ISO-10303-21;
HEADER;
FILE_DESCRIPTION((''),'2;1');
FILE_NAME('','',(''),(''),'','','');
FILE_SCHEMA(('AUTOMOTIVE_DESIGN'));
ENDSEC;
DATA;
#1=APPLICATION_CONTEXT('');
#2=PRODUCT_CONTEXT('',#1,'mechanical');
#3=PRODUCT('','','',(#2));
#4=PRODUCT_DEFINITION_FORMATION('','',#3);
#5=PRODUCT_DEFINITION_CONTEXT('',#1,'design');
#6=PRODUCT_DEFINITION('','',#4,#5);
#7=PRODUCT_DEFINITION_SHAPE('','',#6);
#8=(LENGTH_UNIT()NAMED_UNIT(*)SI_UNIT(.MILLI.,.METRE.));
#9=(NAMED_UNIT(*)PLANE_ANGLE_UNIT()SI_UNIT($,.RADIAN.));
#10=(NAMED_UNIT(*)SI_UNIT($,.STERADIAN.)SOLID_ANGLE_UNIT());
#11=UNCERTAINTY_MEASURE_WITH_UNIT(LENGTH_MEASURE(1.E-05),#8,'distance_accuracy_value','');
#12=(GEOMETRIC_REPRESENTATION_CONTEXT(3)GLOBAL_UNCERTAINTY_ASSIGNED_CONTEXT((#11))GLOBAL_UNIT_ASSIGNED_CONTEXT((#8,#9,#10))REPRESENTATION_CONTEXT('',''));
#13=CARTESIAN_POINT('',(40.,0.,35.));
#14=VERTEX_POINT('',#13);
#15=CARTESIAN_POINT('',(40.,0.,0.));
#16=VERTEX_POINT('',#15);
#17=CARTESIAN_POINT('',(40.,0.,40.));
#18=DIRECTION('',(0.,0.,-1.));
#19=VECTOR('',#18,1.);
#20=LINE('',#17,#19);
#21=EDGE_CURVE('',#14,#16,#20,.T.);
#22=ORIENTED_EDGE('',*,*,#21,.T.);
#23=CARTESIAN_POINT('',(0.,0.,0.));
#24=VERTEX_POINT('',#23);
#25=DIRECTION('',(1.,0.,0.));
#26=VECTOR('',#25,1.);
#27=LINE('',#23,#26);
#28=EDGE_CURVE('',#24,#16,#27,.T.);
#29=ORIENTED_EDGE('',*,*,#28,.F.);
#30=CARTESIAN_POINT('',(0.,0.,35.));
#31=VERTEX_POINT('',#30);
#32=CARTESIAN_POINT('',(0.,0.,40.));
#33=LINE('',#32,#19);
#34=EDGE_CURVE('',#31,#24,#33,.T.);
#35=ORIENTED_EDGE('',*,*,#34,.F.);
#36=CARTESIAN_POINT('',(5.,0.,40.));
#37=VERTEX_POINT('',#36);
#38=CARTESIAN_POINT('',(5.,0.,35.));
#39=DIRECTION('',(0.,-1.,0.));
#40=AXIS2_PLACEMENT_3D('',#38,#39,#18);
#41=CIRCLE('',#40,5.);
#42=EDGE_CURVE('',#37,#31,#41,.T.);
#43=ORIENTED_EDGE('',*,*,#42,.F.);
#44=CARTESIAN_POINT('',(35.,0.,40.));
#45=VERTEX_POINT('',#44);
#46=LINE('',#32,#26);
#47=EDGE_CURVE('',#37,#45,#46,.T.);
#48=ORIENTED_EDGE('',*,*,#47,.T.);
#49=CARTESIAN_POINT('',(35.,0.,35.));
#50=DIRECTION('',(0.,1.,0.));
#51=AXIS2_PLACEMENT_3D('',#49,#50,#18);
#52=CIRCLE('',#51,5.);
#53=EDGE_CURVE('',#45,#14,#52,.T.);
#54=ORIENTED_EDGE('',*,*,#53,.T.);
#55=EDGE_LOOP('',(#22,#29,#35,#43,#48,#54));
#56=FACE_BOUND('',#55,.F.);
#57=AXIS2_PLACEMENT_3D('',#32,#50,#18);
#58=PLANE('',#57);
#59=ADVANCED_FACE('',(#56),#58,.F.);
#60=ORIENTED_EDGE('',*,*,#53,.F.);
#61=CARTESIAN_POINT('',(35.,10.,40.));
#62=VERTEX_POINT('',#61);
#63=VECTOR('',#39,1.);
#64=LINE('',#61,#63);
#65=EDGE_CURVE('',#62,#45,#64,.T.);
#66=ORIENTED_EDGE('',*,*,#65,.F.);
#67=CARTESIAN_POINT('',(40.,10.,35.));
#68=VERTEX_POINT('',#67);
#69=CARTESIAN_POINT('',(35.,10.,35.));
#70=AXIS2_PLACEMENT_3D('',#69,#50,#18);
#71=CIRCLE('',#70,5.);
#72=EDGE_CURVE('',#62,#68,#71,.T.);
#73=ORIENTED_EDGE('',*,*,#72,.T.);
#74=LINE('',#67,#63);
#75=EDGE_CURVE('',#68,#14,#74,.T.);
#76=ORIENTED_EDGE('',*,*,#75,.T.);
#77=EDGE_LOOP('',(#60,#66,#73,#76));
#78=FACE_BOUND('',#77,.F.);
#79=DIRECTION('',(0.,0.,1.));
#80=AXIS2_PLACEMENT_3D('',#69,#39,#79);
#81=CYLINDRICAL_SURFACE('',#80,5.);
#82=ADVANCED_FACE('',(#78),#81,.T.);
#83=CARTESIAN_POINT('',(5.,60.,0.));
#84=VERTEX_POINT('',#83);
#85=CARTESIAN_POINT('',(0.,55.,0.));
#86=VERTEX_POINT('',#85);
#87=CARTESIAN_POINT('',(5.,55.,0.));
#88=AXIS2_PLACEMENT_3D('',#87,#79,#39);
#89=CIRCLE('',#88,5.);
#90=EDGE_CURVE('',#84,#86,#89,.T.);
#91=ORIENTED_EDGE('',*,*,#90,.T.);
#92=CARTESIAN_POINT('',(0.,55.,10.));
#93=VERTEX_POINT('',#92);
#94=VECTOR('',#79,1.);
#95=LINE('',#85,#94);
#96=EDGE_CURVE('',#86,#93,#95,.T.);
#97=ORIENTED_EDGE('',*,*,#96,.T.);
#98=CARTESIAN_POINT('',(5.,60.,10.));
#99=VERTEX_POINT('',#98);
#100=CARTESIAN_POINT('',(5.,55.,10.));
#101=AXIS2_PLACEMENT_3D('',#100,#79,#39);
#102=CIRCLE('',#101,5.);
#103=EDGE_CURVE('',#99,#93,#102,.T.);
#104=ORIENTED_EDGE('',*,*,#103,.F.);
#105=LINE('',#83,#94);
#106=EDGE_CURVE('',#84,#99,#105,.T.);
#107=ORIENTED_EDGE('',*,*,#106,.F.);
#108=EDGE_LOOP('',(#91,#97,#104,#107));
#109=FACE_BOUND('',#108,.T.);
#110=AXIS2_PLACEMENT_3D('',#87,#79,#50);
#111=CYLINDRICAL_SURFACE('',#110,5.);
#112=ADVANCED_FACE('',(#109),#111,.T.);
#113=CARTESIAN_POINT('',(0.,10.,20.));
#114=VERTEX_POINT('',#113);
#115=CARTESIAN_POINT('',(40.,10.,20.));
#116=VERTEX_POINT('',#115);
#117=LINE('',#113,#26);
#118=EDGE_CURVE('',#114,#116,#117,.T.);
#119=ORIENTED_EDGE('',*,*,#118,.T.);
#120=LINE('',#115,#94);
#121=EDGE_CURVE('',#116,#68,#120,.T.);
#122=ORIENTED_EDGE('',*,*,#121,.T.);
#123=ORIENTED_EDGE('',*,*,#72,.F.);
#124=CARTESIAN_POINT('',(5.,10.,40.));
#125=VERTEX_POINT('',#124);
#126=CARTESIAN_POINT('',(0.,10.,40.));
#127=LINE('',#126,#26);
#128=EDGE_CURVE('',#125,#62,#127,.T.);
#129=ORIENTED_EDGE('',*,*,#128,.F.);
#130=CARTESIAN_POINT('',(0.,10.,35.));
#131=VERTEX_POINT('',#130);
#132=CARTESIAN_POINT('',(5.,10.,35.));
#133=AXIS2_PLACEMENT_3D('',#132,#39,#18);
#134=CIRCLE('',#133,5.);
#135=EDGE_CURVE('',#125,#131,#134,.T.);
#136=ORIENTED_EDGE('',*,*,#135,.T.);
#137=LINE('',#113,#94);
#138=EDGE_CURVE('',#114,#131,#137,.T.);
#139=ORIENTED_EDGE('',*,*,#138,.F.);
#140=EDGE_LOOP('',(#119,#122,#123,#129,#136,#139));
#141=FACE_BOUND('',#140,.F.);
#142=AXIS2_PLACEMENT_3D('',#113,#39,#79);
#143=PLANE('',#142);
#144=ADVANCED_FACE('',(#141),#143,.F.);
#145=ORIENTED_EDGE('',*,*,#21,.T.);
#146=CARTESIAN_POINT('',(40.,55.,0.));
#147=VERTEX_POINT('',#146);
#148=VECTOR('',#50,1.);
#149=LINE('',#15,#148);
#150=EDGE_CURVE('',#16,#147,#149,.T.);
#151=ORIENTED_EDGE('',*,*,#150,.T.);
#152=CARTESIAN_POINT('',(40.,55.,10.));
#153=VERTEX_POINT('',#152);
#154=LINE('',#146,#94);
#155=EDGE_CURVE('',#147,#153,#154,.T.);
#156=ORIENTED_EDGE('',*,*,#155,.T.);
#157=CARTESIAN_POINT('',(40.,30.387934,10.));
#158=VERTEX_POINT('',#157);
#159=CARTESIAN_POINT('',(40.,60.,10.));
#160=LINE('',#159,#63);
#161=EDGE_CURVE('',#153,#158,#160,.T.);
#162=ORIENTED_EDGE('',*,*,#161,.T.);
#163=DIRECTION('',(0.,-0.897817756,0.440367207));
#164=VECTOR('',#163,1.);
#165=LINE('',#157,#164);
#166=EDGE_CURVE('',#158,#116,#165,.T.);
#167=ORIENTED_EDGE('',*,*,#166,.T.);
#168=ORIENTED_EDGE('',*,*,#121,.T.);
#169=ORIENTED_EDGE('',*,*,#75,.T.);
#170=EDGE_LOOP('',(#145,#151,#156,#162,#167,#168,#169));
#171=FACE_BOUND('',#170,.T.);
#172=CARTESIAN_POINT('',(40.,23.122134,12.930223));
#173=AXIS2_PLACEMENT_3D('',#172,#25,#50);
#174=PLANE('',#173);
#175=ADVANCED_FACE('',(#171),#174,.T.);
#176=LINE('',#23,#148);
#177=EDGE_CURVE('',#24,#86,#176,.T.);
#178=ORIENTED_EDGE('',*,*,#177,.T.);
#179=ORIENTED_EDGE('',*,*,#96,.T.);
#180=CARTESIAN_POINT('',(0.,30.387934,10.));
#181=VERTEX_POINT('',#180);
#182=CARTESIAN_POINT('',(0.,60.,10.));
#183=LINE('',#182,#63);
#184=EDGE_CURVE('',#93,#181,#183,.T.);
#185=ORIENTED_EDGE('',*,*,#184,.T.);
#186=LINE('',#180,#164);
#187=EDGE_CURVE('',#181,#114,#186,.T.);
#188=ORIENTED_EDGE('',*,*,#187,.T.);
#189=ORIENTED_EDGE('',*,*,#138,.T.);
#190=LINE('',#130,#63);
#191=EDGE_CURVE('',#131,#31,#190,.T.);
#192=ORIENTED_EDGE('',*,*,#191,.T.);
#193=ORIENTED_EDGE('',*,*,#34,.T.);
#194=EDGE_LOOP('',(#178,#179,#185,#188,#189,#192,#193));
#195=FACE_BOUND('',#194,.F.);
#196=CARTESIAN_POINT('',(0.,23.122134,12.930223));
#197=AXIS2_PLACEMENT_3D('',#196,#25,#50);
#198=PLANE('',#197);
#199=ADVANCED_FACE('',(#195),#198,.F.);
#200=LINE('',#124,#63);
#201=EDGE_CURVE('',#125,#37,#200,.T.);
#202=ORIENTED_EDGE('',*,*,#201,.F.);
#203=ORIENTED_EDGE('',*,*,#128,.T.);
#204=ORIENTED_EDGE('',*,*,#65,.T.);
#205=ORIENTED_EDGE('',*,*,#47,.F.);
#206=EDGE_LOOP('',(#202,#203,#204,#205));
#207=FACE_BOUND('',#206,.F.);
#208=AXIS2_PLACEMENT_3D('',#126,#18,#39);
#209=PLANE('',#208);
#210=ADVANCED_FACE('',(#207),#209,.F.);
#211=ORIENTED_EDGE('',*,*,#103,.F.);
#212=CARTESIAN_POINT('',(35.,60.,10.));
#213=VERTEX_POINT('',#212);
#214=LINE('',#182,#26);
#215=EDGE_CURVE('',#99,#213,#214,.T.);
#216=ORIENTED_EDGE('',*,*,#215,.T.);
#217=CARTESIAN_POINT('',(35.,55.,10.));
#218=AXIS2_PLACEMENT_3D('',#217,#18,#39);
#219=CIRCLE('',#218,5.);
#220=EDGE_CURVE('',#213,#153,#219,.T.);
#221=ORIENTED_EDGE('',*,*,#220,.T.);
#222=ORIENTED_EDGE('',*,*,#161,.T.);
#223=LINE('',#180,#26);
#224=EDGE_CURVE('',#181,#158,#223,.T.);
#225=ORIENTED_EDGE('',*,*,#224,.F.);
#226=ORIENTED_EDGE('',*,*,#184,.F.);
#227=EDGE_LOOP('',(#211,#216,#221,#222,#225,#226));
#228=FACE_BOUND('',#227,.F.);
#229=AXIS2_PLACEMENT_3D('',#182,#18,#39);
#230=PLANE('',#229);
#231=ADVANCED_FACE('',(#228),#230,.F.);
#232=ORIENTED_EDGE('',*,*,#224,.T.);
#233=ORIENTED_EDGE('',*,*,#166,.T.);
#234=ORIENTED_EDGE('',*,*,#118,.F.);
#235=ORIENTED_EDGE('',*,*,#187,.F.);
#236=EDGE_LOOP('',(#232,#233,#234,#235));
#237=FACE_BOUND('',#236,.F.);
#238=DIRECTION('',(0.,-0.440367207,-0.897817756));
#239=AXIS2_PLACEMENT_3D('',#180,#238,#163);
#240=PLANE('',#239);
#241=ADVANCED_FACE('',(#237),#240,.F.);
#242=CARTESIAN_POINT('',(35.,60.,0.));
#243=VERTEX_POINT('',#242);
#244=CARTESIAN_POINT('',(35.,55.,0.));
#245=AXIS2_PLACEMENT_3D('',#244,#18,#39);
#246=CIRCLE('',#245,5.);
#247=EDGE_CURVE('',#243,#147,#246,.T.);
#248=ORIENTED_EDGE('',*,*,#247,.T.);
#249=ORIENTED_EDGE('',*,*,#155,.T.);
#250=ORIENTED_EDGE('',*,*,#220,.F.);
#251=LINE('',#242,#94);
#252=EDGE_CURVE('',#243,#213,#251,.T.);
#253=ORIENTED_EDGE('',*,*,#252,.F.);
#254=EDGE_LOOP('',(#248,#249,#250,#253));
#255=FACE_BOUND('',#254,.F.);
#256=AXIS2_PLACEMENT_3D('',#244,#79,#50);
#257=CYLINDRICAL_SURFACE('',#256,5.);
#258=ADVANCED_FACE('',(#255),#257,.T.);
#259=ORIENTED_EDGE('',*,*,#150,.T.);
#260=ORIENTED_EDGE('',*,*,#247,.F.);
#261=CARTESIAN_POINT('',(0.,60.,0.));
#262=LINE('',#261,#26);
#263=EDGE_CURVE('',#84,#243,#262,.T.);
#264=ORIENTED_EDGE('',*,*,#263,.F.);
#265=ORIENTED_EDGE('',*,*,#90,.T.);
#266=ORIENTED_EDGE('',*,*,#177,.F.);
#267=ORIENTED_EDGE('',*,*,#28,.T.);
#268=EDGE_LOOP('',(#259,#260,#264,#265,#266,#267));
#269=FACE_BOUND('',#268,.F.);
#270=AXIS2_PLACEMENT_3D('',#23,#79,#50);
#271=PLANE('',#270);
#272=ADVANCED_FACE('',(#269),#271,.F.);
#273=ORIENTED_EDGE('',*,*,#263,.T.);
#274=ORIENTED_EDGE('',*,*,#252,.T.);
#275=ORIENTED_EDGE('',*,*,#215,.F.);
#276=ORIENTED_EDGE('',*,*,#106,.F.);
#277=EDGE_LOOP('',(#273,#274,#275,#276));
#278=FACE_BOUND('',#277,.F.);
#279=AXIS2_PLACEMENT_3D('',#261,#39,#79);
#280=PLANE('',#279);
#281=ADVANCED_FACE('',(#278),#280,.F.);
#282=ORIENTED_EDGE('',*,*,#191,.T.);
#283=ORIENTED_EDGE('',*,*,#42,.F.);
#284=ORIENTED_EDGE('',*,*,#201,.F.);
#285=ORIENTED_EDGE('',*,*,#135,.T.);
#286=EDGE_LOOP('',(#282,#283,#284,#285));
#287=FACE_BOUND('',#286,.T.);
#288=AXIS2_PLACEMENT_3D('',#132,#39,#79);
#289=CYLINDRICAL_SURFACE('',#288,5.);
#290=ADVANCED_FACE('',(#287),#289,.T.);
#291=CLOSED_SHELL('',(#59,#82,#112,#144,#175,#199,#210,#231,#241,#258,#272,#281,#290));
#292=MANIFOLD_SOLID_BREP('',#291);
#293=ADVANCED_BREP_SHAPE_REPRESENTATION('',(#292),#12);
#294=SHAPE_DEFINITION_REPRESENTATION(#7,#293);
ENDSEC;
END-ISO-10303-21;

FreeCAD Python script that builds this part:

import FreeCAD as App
import Part
import Sketcher


def edges_at(feature, points):
    """Names of the edges that pass closest to the given points."""
    edges = feature.Shape.Edges
    near = lambda p: min(range(len(edges)), key=lambda i: edges[i].distToShape(Part.Vertex(*p))[0])
    return sorted({f"Edge{near(p) + 1}" for p in points})


def add_polygon(sketch, points):
    """Adds a closed chain of lines whose ends are joined by coincident constraints."""
    first, n = sketch.GeometryCount, len(points)
    for a, b in zip(points, points[1:] + points[:1]):
        sketch.addGeometry(Part.LineSegment(App.Vector(*a, 0), App.Vector(*b, 0)), False)
    for i in range(n):
        sketch.addConstraint(Sketcher.Constraint("Coincident", first + i, 2, first + (i + 1) % n, 1))

doc = App.newDocument("Part")
params = doc.addObject("Spreadsheet::Sheet", "Params")
for row, (alias, value) in enumerate([
    ("sketch1_width", "60 mm"),
    ("sketch1_width2", "10 mm"),
    ("sketch1_height", "40 mm"),
    ("sketch1_height2", "20 mm"),
    ("pad1_length", "40 mm"),
    ("fillet_radius", "5 mm"),
], start=1):
    params.set(f"A{row}", alias)
    params.set(f"B{row}", "=" + value)
    params.setAlias(f"B{row}", alias)

body = doc.addObject("PartDesign::Body", "Body")

# Sketch on YZ plane
sketch1 = body.newObject("Sketcher::SketchObject", "Sketch")
sketch1.AttachmentSupport = (doc.getObject("YZ_Plane"), [""])
sketch1.MapMode = "FlatFace"
add_polygon(sketch1, [(0, 40), (0, 0), (60, 0), (60, 10), (30.387934, 10), (10, 20), (10, 40)])  # lines 0-6
sketch1.addConstraint([
    Sketcher.Constraint("Vertical", 0),
    Sketcher.Constraint("Horizontal", 1),
    Sketcher.Constraint("Vertical", 2),
    Sketcher.Constraint("Horizontal", 3),
    Sketcher.Constraint("Vertical", 5),
    Sketcher.Constraint("Horizontal", 6),
    Sketcher.Constraint("Coincident", 0, 2, -1, 1),
    Sketcher.Constraint("Equal", 6, 2),
    Sketcher.Constraint("DistanceX", 1, 1, 1, 2, 60.0),
    Sketcher.Constraint("DistanceX", 6, 2, 6, 1, 10.0),
    Sketcher.Constraint("DistanceY", 0, 2, 0, 1, 40.0),
    Sketcher.Constraint("DistanceY", 5, 1, 5, 2, 20.0),
    Sketcher.Constraint("Distance", 4, 22.708321),
])
sketch1.setExpression("Constraints[15]", "Params.sketch1_width")
sketch1.setExpression("Constraints[16]", "Params.sketch1_width2")
sketch1.setExpression("Constraints[17]", "Params.sketch1_height")
sketch1.setExpression("Constraints[18]", "Params.sketch1_height2")
pad1 = body.newObject("PartDesign::Pad", "Pad")
pad1.Profile = sketch1
pad1.setExpression("Length", "Params.pad1_length")
doc.recompute()

fillet = body.newObject("PartDesign::Fillet", "Fillet")
fillet.Base = (pad1, edges_at(pad1, [
    (0, 5, 40),
    (40, 5, 40),
    (0, 60, 5),
    (40, 60, 5),
]))
fillet.setExpression("Radius", "Params.fillet_radius")

doc.recompute()
